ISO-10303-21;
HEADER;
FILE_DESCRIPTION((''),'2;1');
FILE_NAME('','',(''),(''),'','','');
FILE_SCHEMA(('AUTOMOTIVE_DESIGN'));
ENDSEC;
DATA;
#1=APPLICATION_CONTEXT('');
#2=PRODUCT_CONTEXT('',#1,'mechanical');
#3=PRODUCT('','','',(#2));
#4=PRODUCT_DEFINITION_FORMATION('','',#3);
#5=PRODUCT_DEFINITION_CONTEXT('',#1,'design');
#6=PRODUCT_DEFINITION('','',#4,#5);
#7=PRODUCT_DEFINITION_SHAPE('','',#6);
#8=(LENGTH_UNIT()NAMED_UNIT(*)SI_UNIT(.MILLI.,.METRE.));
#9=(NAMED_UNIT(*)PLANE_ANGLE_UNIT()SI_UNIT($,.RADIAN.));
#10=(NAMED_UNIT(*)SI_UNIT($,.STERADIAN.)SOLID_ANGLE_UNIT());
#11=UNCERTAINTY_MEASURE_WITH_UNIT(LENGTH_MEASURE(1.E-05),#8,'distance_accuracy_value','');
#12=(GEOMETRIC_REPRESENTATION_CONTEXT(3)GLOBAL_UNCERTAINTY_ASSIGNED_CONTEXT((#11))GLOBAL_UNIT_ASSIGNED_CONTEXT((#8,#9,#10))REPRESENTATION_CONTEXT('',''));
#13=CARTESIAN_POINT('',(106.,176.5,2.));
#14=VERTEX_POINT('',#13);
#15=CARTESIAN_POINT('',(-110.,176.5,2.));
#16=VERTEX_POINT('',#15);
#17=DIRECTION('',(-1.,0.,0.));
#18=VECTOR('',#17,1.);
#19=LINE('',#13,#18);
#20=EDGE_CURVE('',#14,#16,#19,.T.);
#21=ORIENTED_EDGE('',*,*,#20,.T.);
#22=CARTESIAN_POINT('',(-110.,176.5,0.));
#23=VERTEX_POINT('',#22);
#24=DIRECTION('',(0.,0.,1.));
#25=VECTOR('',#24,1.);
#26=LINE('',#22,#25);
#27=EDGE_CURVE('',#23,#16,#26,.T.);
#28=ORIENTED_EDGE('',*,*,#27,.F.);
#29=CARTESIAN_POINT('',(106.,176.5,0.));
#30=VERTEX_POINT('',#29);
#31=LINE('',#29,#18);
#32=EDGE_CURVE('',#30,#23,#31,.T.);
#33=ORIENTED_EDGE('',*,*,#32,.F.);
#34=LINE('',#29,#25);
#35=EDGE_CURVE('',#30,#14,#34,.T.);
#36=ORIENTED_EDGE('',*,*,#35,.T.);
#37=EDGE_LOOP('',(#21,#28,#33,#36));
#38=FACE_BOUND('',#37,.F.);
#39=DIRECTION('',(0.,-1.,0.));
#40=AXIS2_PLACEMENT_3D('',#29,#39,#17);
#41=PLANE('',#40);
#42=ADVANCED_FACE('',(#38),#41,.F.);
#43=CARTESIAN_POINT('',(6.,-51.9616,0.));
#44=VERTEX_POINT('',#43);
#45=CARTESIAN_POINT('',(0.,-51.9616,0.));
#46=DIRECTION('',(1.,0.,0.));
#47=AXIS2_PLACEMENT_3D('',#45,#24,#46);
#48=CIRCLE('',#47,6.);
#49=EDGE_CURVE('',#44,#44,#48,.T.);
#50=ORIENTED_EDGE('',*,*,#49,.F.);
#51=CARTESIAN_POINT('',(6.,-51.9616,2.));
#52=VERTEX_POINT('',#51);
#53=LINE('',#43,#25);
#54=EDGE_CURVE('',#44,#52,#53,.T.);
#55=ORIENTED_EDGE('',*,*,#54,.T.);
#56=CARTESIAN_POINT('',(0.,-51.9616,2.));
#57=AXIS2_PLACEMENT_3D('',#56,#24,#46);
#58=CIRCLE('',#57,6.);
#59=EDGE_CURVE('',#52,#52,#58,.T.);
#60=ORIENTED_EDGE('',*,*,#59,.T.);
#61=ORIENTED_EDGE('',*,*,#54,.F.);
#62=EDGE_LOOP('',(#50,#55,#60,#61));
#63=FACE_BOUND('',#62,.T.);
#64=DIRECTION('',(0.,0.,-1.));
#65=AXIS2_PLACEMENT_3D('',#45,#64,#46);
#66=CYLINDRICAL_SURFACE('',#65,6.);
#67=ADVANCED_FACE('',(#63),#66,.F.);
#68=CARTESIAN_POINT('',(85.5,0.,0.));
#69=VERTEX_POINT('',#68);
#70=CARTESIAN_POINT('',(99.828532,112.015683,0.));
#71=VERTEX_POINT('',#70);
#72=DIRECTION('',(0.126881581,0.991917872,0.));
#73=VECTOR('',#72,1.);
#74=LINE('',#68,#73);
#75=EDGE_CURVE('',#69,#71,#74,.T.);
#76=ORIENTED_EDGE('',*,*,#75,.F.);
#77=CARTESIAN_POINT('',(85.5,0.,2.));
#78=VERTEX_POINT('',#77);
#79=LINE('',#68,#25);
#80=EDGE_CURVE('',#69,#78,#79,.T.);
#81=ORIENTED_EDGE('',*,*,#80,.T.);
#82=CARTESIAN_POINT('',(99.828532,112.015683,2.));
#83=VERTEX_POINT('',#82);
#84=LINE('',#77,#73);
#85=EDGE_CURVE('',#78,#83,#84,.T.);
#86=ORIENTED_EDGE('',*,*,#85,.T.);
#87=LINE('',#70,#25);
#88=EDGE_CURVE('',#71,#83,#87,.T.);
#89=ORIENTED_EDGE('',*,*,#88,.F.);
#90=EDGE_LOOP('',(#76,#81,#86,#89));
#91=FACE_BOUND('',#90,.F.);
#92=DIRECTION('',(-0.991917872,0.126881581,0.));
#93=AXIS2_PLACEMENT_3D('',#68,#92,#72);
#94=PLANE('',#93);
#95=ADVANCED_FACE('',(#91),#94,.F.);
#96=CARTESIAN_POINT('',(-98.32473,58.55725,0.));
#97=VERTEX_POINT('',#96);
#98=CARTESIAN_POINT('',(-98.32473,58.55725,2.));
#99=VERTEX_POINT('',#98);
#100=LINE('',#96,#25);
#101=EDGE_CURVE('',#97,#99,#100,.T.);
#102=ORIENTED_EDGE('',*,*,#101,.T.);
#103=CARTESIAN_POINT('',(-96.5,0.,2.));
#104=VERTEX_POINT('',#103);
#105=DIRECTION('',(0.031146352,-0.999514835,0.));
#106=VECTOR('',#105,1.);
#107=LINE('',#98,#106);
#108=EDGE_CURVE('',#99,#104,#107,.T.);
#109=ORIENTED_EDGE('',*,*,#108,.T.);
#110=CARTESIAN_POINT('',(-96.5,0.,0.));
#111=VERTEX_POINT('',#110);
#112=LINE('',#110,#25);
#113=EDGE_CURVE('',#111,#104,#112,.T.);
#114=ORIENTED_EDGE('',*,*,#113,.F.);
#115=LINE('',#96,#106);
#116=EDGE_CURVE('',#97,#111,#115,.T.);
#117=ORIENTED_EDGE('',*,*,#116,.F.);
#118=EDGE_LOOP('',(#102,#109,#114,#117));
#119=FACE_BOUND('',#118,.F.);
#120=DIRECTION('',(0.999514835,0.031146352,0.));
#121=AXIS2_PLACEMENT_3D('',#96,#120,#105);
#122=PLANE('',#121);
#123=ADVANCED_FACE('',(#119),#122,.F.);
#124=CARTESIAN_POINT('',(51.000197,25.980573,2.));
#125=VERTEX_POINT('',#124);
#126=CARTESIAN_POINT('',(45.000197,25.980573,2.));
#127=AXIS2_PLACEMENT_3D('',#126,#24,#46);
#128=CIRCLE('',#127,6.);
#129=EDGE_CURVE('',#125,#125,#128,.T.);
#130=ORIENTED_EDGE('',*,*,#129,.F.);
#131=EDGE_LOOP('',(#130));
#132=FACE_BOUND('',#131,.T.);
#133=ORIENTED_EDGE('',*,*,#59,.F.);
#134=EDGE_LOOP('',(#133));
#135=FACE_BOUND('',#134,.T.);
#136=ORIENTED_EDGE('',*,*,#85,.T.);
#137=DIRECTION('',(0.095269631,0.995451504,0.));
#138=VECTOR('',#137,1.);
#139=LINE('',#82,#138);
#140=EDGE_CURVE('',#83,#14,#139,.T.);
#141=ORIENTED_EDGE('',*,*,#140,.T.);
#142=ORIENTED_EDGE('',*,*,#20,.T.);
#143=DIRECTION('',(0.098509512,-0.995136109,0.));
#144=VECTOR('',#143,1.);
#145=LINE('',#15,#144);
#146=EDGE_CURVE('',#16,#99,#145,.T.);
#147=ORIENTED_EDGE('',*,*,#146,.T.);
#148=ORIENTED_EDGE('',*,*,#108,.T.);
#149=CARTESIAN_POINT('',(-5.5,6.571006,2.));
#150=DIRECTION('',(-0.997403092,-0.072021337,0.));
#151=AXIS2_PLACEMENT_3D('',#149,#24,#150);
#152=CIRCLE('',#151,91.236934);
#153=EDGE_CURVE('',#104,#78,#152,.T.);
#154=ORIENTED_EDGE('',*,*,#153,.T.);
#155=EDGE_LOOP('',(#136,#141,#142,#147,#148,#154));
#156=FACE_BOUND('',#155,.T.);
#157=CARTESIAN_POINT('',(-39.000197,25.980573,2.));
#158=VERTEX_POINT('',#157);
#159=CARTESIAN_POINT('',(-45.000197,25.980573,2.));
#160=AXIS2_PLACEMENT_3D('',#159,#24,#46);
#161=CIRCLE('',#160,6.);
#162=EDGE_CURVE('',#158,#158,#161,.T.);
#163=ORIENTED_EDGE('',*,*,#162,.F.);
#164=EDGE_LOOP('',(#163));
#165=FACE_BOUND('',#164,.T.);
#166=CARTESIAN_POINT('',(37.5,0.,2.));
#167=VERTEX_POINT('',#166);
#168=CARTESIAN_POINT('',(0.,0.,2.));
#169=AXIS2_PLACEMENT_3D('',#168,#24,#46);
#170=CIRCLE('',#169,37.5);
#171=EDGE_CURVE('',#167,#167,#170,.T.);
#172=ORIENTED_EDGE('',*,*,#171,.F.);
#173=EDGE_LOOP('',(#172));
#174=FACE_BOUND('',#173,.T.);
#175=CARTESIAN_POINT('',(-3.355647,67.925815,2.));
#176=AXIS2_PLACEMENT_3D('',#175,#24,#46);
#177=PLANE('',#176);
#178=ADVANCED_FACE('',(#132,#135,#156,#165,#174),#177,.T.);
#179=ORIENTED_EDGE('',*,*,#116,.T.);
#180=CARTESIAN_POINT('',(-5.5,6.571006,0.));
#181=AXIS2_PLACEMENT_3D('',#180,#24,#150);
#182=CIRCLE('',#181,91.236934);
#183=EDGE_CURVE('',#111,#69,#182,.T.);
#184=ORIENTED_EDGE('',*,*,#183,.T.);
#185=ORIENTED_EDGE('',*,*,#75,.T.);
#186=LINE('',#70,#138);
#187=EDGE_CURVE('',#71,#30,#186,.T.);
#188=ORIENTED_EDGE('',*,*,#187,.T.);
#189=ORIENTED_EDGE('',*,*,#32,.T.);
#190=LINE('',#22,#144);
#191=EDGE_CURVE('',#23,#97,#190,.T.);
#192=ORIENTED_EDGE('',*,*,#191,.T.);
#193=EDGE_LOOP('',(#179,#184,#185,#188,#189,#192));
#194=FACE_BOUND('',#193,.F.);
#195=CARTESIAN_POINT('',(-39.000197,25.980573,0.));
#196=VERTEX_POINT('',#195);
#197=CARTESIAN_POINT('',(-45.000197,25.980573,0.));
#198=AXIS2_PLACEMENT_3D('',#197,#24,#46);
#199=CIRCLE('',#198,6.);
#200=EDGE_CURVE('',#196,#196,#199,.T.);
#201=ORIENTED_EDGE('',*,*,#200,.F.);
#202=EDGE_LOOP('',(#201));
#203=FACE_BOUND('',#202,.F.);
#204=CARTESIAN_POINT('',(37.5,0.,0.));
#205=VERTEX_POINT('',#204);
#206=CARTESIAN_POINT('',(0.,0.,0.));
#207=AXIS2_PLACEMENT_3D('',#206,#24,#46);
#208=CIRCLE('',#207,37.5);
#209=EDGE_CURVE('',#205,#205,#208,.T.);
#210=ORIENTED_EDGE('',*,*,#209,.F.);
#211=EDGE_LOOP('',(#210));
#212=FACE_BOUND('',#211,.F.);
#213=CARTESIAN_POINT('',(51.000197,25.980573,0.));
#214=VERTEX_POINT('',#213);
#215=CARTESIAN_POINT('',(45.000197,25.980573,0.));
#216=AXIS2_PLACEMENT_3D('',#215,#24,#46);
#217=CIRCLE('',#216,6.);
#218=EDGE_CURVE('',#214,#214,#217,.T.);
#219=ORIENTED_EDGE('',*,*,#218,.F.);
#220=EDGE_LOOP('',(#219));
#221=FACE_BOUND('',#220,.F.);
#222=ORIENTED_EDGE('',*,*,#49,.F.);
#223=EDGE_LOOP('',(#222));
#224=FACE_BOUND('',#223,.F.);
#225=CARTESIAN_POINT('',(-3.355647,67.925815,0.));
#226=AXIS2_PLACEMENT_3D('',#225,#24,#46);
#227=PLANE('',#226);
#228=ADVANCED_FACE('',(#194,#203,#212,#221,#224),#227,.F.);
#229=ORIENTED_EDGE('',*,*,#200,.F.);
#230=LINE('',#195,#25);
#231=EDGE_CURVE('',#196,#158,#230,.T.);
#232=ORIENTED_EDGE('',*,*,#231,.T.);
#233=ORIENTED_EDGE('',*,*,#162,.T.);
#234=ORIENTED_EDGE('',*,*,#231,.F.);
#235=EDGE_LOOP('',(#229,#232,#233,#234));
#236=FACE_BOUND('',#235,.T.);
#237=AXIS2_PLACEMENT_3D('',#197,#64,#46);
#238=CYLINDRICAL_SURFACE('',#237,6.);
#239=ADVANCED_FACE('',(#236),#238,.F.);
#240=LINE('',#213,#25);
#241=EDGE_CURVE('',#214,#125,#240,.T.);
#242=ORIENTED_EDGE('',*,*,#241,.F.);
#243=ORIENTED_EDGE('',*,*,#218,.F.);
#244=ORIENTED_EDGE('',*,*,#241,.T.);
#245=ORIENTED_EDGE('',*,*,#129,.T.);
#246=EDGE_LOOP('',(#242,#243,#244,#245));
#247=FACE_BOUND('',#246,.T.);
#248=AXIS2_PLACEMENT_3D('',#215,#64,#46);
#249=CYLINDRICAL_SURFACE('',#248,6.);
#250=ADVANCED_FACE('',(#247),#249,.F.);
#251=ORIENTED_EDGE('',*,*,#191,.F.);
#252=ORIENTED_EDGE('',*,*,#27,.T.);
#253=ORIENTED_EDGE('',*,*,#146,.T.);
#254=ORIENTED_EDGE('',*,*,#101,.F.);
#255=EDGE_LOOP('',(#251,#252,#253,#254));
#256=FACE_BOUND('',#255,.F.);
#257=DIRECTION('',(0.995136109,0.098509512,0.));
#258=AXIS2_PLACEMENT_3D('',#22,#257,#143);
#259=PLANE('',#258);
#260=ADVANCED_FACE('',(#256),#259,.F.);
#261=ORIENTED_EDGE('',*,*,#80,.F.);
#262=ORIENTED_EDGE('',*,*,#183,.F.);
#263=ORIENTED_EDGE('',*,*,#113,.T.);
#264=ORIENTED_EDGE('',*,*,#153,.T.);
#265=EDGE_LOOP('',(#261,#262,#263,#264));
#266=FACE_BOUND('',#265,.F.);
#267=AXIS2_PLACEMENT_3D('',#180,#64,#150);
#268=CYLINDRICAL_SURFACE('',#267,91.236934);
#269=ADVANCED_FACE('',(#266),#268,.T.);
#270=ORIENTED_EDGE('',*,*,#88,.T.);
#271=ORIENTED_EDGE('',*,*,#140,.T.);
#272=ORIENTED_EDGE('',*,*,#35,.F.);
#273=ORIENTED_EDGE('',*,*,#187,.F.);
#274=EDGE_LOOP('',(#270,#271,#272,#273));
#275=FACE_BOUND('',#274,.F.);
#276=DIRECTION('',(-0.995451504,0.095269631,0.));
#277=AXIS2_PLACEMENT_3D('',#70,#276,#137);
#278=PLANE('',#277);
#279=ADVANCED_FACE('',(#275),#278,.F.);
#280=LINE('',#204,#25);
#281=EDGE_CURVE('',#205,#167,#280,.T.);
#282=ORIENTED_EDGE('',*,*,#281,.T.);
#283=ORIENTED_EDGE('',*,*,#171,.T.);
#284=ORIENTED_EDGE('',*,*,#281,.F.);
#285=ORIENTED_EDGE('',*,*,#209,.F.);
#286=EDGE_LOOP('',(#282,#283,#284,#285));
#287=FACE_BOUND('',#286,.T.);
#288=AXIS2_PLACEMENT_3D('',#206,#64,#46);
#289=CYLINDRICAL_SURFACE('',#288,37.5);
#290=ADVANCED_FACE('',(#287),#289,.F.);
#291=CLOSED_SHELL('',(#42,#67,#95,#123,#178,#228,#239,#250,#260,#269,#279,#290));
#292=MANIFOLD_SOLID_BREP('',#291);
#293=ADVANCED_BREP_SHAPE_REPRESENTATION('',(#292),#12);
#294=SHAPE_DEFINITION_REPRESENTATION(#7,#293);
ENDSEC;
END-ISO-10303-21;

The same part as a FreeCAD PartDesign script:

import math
import FreeCAD as App
import Part
import Sketcher
from FreeCAD import Vector

doc = App.newDocument("Part")
body = doc.addObject("PartDesign::Body", "Body")

# Sketch on XY plane
sketch1 = doc.addObject("Sketcher::SketchObject", "Sketch")
body.addObject(sketch1)
sketch1.AttachmentSupport = (doc.XY_Plane, [""])
sketch1.MapMode = "FlatFace"
sketch1.addGeometry([
    Part.LineSegment(Vector(-98.32473, 58.55725, 0), Vector(-96.5, 0, 0)),  # 0
    Part.ArcOfCircle(Part.Circle(Vector(-5.5, 6.571006, 0), Vector(0, 0, 1), 91.236934), math.radians(-175.869906), math.radians(-4.130094)),  # 1
    Part.LineSegment(Vector(85.5, 0, 0), Vector(99.828532, 112.015683, 0)),  # 2
    Part.LineSegment(Vector(99.828532, 112.015683, 0), Vector(106, 176.5, 0)),  # 3
    Part.LineSegment(Vector(106, 176.5, 0), Vector(-110, 176.5, 0)),  # 4
    Part.LineSegment(Vector(-110, 176.5, 0), Vector(-98.32473, 58.55725, 0)),  # 5
    Part.Circle(Vector(0, -51.9616, 0), Vector(0, 0, 1), 6),  # 6
    Part.Circle(Vector(-45.000197, 25.980573, 0), Vector(0, 0, 1), 6),  # 7
    Part.Circle(Vector(0, 0, 0), Vector(0, 0, 1), 37.5),  # 8
    Part.Circle(Vector(45.000197, 25.980573, 0), Vector(0, 0, 1), 6),  # 9
], False)
sketch1.addConstraint([
    Sketcher.Constraint("Coincident", 0, 2, 1, 1),
    Sketcher.Constraint("Coincident", 1, 2, 2, 1),
    Sketcher.Constraint("Coincident", 2, 2, 3, 1),
    Sketcher.Constraint("Coincident", 3, 2, 4, 1),
    Sketcher.Constraint("Coincident", 4, 2, 5, 1),
    Sketcher.Constraint("Coincident", 5, 2, 0, 1),
    Sketcher.Constraint("Horizontal", 4),
    Sketcher.Constraint("Coincident", 8, 3, -1, 1),
    Sketcher.Constraint("Equal", 6, 7),
    Sketcher.Constraint("Equal", 7, 9),
    Sketcher.Constraint("Symmetric", 7, 3, 9, 3, -2),
    Sketcher.Constraint("PointOnObject", 6, 3, -2),
    Sketcher.Constraint("PointOnObject", 0, 2, -1),
    Sketcher.Constraint("PointOnObject", 1, 2, -1),
    Sketcher.Constraint("Diameter", 6, 12.0),
    Sketcher.Constraint("Diameter", 8, 75.0),
    Sketcher.Constraint("DistanceX", 4, 2, 4, 1, 216.0),
    Sketcher.Constraint("DistanceX", -1, 1, 3, 2, 106.0),
    Sketcher.Constraint("DistanceX", 0, 2, 1, 3, 91.0),
    Sketcher.Constraint("DistanceX", 1, 3, -1, 1, 5.5),
    Sketcher.Constraint("DistanceY", -1, 1, 3, 2, 176.5),
    Sketcher.Constraint("Radius", 1, 91.236934),
    Sketcher.Constraint("DistanceY", 6, 3, -1, 1, 51.9616),
    Sketcher.Constraint("DistanceX", -1, 1, 2, 2, 99.828532),
    Sketcher.Constraint("DistanceX", 5, 2, -1, 1, 98.32473),
    Sketcher.Constraint("DistanceY", -1, 1, 5, 2, 58.55725),
    Sketcher.Constraint("DistanceY", 9, 3, 2, 2, 86.03511),
    Sketcher.Constraint("DistanceX", 7, 3, 2, 2, 144.828729),
    Sketcher.Constraint("Distance", 2, 112.928385),
])
pad1 = doc.addObject("PartDesign::Pad", "Pad")
body.addObject(pad1)
pad1.Profile = sketch1
pad1.Length = 2

doc.recompute()
